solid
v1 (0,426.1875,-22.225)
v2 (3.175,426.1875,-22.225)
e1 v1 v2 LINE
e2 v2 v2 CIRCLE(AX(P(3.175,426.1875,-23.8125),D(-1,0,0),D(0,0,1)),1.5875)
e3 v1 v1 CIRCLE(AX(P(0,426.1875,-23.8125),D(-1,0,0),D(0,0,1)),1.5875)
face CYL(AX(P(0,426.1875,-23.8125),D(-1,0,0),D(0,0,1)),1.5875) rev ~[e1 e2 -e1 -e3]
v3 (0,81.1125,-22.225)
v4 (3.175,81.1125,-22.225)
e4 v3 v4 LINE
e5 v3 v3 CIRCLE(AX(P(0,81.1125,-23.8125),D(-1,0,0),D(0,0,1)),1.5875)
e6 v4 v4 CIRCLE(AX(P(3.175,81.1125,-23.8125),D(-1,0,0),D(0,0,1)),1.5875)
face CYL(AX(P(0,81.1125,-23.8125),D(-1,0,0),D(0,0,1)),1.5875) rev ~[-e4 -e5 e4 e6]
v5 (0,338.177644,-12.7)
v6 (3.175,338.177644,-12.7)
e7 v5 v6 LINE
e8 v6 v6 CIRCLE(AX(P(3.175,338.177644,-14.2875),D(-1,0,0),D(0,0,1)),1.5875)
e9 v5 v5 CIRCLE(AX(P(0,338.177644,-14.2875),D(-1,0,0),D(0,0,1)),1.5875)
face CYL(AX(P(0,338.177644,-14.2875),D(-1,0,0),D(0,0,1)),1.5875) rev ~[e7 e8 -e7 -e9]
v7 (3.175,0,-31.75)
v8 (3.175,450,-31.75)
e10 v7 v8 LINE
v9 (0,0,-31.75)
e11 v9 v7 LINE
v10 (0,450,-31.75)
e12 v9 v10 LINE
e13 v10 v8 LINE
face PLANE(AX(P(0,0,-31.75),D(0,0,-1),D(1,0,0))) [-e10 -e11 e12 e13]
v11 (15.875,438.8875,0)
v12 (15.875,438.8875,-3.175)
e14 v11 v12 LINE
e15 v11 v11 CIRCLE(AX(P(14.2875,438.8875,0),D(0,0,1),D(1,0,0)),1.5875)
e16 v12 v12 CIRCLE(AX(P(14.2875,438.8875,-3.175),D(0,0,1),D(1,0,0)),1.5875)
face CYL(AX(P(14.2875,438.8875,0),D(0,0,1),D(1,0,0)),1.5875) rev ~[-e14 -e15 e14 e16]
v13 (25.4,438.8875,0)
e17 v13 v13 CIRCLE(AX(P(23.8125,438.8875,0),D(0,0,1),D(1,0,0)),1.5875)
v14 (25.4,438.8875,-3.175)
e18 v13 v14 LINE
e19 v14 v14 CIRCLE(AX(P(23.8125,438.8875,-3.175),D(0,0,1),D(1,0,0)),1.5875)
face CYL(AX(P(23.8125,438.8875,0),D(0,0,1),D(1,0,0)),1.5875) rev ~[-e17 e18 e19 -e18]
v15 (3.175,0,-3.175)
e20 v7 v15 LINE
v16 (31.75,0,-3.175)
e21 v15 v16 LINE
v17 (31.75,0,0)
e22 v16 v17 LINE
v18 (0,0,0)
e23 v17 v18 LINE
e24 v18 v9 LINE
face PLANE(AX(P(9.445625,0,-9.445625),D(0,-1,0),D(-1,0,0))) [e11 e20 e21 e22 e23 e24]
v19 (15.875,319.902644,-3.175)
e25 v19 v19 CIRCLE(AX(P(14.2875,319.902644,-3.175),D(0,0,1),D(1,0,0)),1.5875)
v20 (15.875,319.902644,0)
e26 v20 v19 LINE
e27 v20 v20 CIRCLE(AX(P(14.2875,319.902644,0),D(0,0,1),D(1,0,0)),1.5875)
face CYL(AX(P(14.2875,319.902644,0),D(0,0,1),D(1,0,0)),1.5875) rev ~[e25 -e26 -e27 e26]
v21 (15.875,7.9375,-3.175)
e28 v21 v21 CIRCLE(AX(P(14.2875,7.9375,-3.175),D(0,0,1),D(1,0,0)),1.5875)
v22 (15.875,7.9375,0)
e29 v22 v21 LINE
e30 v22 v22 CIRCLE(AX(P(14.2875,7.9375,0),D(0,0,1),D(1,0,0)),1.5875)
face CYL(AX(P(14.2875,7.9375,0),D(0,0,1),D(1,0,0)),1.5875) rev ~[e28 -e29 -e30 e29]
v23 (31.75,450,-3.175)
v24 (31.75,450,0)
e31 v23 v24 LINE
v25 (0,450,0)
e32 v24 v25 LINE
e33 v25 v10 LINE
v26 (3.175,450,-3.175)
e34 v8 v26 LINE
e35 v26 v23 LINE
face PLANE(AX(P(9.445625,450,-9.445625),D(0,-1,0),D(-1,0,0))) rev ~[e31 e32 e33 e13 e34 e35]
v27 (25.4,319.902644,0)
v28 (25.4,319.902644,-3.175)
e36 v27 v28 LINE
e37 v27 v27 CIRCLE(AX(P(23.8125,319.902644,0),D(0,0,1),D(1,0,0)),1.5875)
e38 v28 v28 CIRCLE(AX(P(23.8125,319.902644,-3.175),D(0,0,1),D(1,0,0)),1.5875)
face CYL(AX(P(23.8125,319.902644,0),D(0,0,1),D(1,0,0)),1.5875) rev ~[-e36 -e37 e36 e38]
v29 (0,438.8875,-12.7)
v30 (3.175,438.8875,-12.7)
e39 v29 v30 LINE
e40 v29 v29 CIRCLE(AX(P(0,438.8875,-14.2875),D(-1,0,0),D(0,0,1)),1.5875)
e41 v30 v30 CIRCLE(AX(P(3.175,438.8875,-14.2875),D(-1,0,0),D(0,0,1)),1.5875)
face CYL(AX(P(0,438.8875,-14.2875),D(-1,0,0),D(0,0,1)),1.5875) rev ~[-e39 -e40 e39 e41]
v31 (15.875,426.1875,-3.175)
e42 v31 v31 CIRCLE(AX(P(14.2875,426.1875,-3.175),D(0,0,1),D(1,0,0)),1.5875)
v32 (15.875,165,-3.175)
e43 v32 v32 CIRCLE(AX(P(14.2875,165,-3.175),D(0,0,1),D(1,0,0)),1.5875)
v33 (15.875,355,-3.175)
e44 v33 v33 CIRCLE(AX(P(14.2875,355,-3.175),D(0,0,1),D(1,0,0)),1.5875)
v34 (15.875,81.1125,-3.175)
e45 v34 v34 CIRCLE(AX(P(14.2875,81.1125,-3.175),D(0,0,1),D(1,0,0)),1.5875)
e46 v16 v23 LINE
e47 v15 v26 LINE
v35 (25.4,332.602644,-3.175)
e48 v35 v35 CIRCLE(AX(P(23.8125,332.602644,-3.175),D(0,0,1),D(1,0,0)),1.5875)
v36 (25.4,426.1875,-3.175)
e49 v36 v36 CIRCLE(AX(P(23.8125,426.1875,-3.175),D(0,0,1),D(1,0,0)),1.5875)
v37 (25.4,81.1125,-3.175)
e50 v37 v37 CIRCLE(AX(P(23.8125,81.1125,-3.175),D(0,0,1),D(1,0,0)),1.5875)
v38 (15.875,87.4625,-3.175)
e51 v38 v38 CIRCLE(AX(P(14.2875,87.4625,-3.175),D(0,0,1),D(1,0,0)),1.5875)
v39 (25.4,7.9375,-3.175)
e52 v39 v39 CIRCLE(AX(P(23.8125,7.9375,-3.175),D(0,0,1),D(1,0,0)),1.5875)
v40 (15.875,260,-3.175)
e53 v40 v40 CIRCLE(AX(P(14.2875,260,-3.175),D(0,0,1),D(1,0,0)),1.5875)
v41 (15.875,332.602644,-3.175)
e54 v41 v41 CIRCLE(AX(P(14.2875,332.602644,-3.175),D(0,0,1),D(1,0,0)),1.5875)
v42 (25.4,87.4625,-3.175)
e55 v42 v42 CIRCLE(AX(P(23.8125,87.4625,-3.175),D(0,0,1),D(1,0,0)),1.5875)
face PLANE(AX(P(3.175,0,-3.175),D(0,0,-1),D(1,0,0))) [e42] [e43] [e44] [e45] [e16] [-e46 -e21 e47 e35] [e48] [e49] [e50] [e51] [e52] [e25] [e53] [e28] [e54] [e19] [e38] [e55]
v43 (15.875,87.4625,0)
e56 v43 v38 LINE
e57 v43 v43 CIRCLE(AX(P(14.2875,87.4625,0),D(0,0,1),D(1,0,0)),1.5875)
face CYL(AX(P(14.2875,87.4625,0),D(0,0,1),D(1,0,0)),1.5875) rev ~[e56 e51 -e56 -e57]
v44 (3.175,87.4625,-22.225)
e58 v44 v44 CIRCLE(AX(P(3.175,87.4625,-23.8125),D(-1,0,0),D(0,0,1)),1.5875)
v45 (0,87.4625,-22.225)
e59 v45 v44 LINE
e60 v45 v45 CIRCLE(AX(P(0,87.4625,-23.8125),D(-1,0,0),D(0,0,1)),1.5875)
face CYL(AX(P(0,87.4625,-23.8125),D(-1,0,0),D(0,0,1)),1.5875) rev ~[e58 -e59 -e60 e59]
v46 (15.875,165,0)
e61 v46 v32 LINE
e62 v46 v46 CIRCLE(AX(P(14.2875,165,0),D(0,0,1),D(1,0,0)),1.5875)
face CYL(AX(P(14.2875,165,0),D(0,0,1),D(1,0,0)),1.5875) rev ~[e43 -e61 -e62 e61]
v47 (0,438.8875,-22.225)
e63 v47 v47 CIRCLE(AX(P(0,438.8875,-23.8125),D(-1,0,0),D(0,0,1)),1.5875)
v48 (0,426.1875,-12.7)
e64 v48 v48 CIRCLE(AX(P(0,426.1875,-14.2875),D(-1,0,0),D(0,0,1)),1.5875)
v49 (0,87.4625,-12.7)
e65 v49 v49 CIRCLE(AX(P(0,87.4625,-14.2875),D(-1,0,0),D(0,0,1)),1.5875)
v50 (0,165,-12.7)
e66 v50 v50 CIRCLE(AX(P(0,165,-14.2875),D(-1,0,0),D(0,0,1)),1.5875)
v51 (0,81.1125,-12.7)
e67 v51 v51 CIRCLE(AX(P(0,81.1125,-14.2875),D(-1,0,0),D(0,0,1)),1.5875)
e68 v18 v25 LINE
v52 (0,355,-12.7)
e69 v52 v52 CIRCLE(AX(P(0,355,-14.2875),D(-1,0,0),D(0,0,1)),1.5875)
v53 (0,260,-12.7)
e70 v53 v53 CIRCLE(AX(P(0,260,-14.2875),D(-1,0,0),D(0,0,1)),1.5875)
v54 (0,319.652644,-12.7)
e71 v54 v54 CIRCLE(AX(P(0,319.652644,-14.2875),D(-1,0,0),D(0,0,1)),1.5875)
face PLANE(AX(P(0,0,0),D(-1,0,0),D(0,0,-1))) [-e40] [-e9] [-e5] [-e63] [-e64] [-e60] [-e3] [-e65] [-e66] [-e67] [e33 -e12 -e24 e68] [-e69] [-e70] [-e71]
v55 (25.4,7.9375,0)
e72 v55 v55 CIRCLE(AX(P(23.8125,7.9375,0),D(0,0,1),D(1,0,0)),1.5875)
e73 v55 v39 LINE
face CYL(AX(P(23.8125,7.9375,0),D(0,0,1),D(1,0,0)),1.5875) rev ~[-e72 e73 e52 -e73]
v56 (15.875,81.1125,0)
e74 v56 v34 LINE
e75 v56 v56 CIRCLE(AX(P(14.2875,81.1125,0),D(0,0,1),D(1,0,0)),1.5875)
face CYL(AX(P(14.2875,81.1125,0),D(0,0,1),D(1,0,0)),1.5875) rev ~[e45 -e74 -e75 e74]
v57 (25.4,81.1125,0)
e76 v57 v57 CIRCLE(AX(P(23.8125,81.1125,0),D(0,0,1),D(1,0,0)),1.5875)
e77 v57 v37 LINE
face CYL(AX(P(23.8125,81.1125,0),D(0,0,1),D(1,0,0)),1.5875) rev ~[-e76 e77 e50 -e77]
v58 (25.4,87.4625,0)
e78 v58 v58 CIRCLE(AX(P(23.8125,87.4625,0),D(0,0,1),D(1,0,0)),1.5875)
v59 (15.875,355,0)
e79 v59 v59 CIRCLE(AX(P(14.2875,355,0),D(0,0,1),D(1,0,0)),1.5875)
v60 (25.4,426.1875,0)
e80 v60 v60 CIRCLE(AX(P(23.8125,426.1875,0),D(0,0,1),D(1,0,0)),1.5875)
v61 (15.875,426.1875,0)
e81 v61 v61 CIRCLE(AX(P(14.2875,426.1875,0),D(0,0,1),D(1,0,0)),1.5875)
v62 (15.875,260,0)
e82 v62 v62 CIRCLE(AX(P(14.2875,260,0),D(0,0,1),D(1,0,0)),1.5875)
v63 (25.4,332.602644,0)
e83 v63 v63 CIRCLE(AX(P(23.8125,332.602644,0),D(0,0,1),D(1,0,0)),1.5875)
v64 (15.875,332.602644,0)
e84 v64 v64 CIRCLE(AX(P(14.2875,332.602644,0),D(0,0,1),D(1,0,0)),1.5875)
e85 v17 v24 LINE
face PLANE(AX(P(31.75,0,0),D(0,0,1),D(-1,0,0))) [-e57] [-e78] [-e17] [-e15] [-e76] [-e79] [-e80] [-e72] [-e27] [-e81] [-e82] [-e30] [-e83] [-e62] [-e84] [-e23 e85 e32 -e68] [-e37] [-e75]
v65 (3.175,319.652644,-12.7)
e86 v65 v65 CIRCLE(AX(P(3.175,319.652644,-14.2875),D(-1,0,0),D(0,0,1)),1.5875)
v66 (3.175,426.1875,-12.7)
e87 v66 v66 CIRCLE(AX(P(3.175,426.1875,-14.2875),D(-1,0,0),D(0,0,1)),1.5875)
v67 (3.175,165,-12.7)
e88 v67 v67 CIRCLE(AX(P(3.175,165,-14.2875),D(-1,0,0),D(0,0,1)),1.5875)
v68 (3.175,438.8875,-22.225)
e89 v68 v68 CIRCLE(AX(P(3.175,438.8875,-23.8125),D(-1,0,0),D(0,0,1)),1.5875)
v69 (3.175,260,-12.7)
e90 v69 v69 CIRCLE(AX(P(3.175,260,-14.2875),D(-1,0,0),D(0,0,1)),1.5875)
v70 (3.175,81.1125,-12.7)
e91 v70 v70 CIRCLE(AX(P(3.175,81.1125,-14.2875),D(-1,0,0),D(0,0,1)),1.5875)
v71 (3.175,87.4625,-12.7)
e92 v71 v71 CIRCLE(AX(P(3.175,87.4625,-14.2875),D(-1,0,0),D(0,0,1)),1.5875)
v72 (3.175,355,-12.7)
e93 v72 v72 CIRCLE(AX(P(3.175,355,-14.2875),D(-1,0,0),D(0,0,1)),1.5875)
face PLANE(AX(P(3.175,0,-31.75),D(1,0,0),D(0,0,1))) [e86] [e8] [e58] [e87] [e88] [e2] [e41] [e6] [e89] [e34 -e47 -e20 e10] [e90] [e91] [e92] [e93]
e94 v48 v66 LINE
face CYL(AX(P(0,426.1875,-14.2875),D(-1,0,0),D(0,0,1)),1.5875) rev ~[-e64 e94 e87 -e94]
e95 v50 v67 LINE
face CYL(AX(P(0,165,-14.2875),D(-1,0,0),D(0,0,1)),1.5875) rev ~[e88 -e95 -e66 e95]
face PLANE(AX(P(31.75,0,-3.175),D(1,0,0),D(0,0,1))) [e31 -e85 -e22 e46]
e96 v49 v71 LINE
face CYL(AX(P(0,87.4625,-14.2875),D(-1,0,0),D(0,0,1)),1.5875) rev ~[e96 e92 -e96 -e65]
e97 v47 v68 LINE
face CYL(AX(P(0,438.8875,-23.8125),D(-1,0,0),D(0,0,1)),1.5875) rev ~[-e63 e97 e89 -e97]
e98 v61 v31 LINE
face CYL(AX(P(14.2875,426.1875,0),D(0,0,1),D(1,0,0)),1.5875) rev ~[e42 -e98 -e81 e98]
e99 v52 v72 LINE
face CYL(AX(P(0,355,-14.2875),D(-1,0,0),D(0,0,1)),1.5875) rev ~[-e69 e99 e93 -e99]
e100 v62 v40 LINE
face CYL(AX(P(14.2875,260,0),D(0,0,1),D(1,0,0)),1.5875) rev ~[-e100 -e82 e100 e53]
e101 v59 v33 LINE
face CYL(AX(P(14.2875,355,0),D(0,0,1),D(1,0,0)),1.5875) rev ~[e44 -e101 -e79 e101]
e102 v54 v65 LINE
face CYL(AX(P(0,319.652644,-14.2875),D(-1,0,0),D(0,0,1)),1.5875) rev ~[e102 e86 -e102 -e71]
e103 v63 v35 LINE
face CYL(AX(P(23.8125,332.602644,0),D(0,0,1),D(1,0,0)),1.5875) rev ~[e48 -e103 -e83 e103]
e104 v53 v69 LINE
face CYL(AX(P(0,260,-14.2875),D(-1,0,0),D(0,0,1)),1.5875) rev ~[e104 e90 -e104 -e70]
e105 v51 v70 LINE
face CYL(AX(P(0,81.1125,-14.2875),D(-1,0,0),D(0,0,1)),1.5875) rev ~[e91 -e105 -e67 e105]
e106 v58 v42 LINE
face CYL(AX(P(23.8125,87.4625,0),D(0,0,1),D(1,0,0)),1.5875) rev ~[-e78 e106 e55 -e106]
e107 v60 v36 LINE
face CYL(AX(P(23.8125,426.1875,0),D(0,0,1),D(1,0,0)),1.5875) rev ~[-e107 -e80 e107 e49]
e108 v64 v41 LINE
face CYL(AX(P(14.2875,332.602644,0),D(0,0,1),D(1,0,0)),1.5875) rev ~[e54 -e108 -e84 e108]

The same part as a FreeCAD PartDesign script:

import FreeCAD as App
import Part
import Sketcher

V = App.Vector
Q = App.Units.Quantity

doc = App.newDocument("Part")
body = doc.addObject("PartDesign::Body", "Body")

# Sketch on XZ plane
sketch1 = body.newObject("Sketcher::SketchObject", "Sketch")
sketch1.AttachmentSupport = (doc.getObject("XZ_Plane"), [""])
sketch1.MapMode = "FlatFace"
sketch1.addGeometry(Part.LineSegment(V(3.2, -31.8, 0), V(0, -31.8, 0)), False)
sketch1.addGeometry(Part.LineSegment(V(0, -31.8, 0), V(0, 0, 0)), False)
sketch1.addGeometry(Part.LineSegment(V(0, 0, 0), V(31.8, 0, 0)), False)
sketch1.addGeometry(Part.LineSegment(V(31.8, 0, 0), V(31.8, -3.2, 0)), False)
sketch1.addGeometry(Part.LineSegment(V(31.8, -3.2, 0), V(3.2, -3.2, 0)), False)
sketch1.addGeometry(Part.LineSegment(V(3.2, -3.2, 0), V(3.2, -31.8, 0)), False)
sketch1.addConstraint(Sketcher.Constraint("Coincident", 0, 2, 1, 1))
sketch1.addConstraint(Sketcher.Constraint("Coincident", 1, 2, 2, 1))
sketch1.addConstraint(Sketcher.Constraint("Coincident", 2, 2, 3, 1))
sketch1.addConstraint(Sketcher.Constraint("Coincident", 3, 2, 4, 1))
sketch1.addConstraint(Sketcher.Constraint("Coincident", 4, 2, 5, 1))
sketch1.addConstraint(Sketcher.Constraint("Coincident", 5, 2, 0, 1))
sketch1.addConstraint(Sketcher.Constraint("Horizontal", 0))
sketch1.addConstraint(Sketcher.Constraint("Vertical", 1))
sketch1.addConstraint(Sketcher.Constraint("Horizontal", 2))
sketch1.addConstraint(Sketcher.Constraint("Vertical", 3))
sketch1.addConstraint(Sketcher.Constraint("Horizontal", 4))
sketch1.addConstraint(Sketcher.Constraint("Vertical", 5))
sketch1.addConstraint(Sketcher.Constraint("Coincident", 1, 2, -1, 1))
sketch1.addConstraint(Sketcher.Constraint("Equal", 2, 1))
sketch1.addConstraint(Sketcher.Constraint("Equal", 0, 3))
sketch1.addConstraint(Sketcher.Constraint("DistanceX", 2, 1, 2, 2, Q("1.25 in")))
sketch1.addConstraint(Sketcher.Constraint("DistanceX", 0, 2, 0, 1, Q("0.125 in")))
pad1 = body.newObject("PartDesign::Pad", "Pad")
pad1.Profile = sketch1
pad1.Length = 450
pad1.Reversed = True

# Sketch on XY plane
sketch2 = body.newObject("Sketcher::SketchObject", "Sketch001")
sketch2.AttachmentSupport = (doc.getObject("XY_Plane"), [""])
sketch2.MapMode = "FlatFace"
sketch2.addGeometry(Part.Circle(V(14.3, 81.1, 0), V(0, 0, 1), 1.6), False)
sketch2.addGeometry(Part.Circle(V(23.8, 81.1, 0), V(0, 0, 1), 1.6), False)
sketch2.addGeometry(Part.Circle(V(14.3, 87.5, 0), V(0, 0, 1), 1.6), False)
sketch2.addGeometry(Part.Circle(V(23.8, 87.5, 0), V(0, 0, 1), 1.6), False)
sketch2.addGeometry(Part.Circle(V(14.3, 438.9, 0), V(0, 0, 1), 1.6), False)
sketch2.addGeometry(Part.Circle(V(14.3, 426.2, 0), V(0, 0, 1), 1.6), False)
sketch2.addGeometry(Part.Circle(V(23.8, 438.9, 0), V(0, 0, 1), 1.6), False)
sketch2.addGeometry(Part.Circle(V(23.8, 426.2, 0), V(0, 0, 1), 1.6), False)
sketch2.addGeometry(Part.Circle(V(14.3, 332.6, 0), V(0, 0, 1), 1.6), False)
sketch2.addGeometry(Part.Circle(V(23.8, 332.6, 0), V(0, 0, 1), 1.6), False)
sketch2.addGeometry(Part.Circle(V(14.3, 319.9, 0), V(0, 0, 1), 1.6), False)
sketch2.addGeometry(Part.Circle(V(23.8, 319.9, 0), V(0, 0, 1), 1.6), False)
sketch2.addGeometry(Part.Circle(V(14.3, 7.9, 0), V(0, 0, 1), 1.6), False)
sketch2.addGeometry(Part.Circle(V(23.8, 7.9, 0), V(0, 0, 1), 1.6), False)
sketch2.addGeometry(Part.Circle(V(14.3, 165, 0), V(0, 0, 1), 1.6), False)
sketch2.addGeometry(Part.Circle(V(14.3, 260, 0), V(0, 0, 1), 1.6), False)
sketch2.addGeometry(Part.Circle(V(14.3, 355, 0), V(0, 0, 1), 1.6), False)
sketch2.addConstraint(Sketcher.Constraint("Equal", 0, 1))
sketch2.addConstraint(Sketcher.Constraint("Equal", 1, 2))
sketch2.addConstraint(Sketcher.Constraint("Equal", 2, 3))
sketch2.addConstraint(Sketcher.Constraint("Equal", 3, 4))
sketch2.addConstraint(Sketcher.Constraint("Equal", 4, 5))
sketch2.addConstraint(Sketcher.Constraint("Equal", 5, 6))
sketch2.addConstraint(Sketcher.Constraint("Equal", 6, 7))
sketch2.addConstraint(Sketcher.Constraint("Equal", 7, 8))
sketch2.addConstraint(Sketcher.Constraint("Equal", 8, 9))
sketch2.addConstraint(Sketcher.Constraint("Equal", 9, 10))
sketch2.addConstraint(Sketcher.Constraint("Equal", 10, 11))
sketch2.addConstraint(Sketcher.Constraint("Equal", 11, 12))
sketch2.addConstraint(Sketcher.Constraint("Equal", 12, 13))
sketch2.addConstraint(Sketcher.Constraint("Equal", 13, 14))
sketch2.addConstraint(Sketcher.Constraint("Equal", 14, 15))
sketch2.addConstraint(Sketcher.Constraint("Equal", 15, 16))
sketch2.addConstraint(Sketcher.Constraint("Horizontal", 0, 3, 1, 3))
sketch2.addConstraint(Sketcher.Constraint("Horizontal", 2, 3, 3, 3))
sketch2.addConstraint(Sketcher.Constraint("Horizontal", 4, 3, 6, 3))
sketch2.addConstraint(Sketcher.Constraint("Horizontal", 5, 3, 7, 3))
sketch2.addConstraint(Sketcher.Constraint("Horizontal", 8, 3, 9, 3))
sketch2.addConstraint(Sketcher.Constraint("Horizontal", 10, 3, 11, 3))
sketch2.addConstraint(Sketcher.Constraint("Horizontal", 12, 3, 13, 3))
sketch2.addConstraint(Sketcher.Constraint("Vertical", 0, 3, 2, 3))
sketch2.addConstraint(Sketcher.Constraint("Vertical", 1, 3, 3, 3))
sketch2.addConstraint(Sketcher.Constraint("Vertical", 2, 3, 4, 3))
sketch2.addConstraint(Sketcher.Constraint("Vertical", 4, 3, 5, 3))
sketch2.addConstraint(Sketcher.Constraint("Vertical", 3, 3, 6, 3))
sketch2.addConstraint(Sketcher.Constraint("Vertical", 6, 3, 7, 3))
sketch2.addConstraint(Sketcher.Constraint("Vertical", 5, 3, 8, 3))
sketch2.addConstraint(Sketcher.Constraint("Vertical", 7, 3, 9, 3))
sketch2.addConstraint(Sketcher.Constraint("Vertical", 8, 3, 10, 3))
sketch2.addConstraint(Sketcher.Constraint("Vertical", 9, 3, 11, 3))
sketch2.addConstraint(Sketcher.Constraint("Vertical", 10, 3, 12, 3))
sketch2.addConstraint(Sketcher.Constraint("Vertical", 11, 3, 13, 3))
sketch2.addConstraint(Sketcher.Constraint("Vertical", 12, 3, 14, 3))
sketch2.addConstraint(Sketcher.Constraint("Vertical", 14, 3, 15, 3))
sketch2.addConstraint(Sketcher.Constraint("Vertical", 15, 3, 16, 3))
sketch2.addConstraint(Sketcher.Constraint("Diameter", 0, Q("0.125 in")))
sketch2.addConstraint(Sketcher.Constraint("DistanceY", 5, 3, 4, 3, Q("0.5 in")))
sketch2.addConstraint(Sketcher.Constraint("DistanceY", 10, 3, 8, 3, Q("0.5 in")))
sketch2.addConstraint(Sketcher.Constraint("DistanceY", 0, 3, 2, 3, Q("0.25 in")))
sketch2.addConstraint(Sketcher.Constraint("DistanceX", -1, 1, 0, 3, Q("0.5625 in")))
sketch2.addConstraint(Sketcher.Constraint("DistanceX", -1, 1, 1, 3, Q("0.9375 in")))
sketch2.addConstraint(Sketcher.Constraint("DistanceY", -1, 1, 12, 3, Q("0.3125 in")))
sketch2.addConstraint(Sketcher.Constraint("DistanceY", -1, 1, 0, 3, Q("81.1125 mm")))
sketch2.addConstraint(Sketcher.Constraint("DistanceY", -1, 1, 4, 3, Q("438.8875 mm")))
sketch2.addConstraint(Sketcher.Constraint("DistanceY", -1, 1, 14, 3, Q("165 mm")))
sketch2.addConstraint(Sketcher.Constraint("DistanceY", -1, 1, 15, 3, Q("260 mm")))
sketch2.addConstraint(Sketcher.Constraint("DistanceY", -1, 1, 16, 3, Q("355 mm")))
sketch2.addConstraint(Sketcher.Constraint("DistanceY", -1, 1, 8, 3, Q("332.602644 mm")))
pocket1 = body.newObject("PartDesign::Pocket", "Pocket")
pocket1.Profile = sketch2
pocket1.Length = Q("0.125 in")

# Sketch on YZ plane
sketch3 = body.newObject("Sketcher::SketchObject", "Sketch002")
sketch3.AttachmentSupport = (doc.getObject("YZ_Plane"), [""])
sketch3.MapMode = "FlatFace"
sketch3.addGeometry(Part.Circle(V(81.1, -23.8, 0), V(0, 0, 1), 1.6), False)
sketch3.addGeometry(Part.Circle(V(81.1, -14.3, 0), V(0, 0, 1), 1.6), False)
sketch3.addGeometry(Part.Circle(V(87.5, -23.8, 0), V(0, 0, 1), 1.6), False)
sketch3.addGeometry(Part.Circle(V(87.5, -14.3, 0), V(0, 0, 1), 1.6), False)
sketch3.addGeometry(Part.Circle(V(438.9, -23.8, 0), V(0, 0, 1), 1.6), False)
sketch3.addGeometry(Part.Circle(V(438.9, -14.3, 0), V(0, 0, 1), 1.6), False)
sketch3.addGeometry(Part.Circle(V(426.2, -23.8, 0), V(0, 0, 1), 1.6), False)
sketch3.addGeometry(Part.Circle(V(426.2, -14.3, 0), V(0, 0, 1), 1.6), False)
sketch3.addGeometry(Part.Circle(V(338.2, -14.3, 0), V(0, 0, 1), 1.6), False)
sketch3.addGeometry(Part.Circle(V(319.7, -14.3, 0), V(0, 0, 1), 1.6), False)
sketch3.addGeometry(Part.Circle(V(165, -14.3, 0), V(0, 0, 1), 1.6), False)
sketch3.addGeometry(Part.Circle(V(260, -14.3, 0), V(0, 0, 1), 1.6), False)
sketch3.addGeometry(Part.Circle(V(355, -14.3, 0), V(0, 0, 1), 1.6), False)
sketch3.addConstraint(Sketcher.Constraint("Equal", 0, 1))
sketch3.addConstraint(Sketcher.Constraint("Equal", 1, 2))
sketch3.addConstraint(Sketcher.Constraint("Equal", 2, 3))
sketch3.addConstraint(Sketcher.Constraint("Equal", 3, 4))
sketch3.addConstraint(Sketcher.Constraint("Equal", 4, 5))
sketch3.addConstraint(Sketcher.Constraint("Equal", 5, 6))
sketch3.addConstraint(Sketcher.Constraint("Equal", 6, 7))
sketch3.addConstraint(Sketcher.Constraint("Equal", 7, 8))
sketch3.addConstraint(Sketcher.Constraint("Equal", 8, 9))
sketch3.addConstraint(Sketcher.Constraint("Equal", 9, 10))
sketch3.addConstraint(Sketcher.Constraint("Equal", 10, 11))
sketch3.addConstraint(Sketcher.Constraint("Equal", 11, 12))
sketch3.addConstraint(Sketcher.Constraint("Horizontal", 0, 3, 2, 3))
sketch3.addConstraint(Sketcher.Constraint("Horizontal", 1, 3, 3, 3))
sketch3.addConstraint(Sketcher.Constraint("Horizontal", 2, 3, 4, 3))
sketch3.addConstraint(Sketcher.Constraint("Horizontal", 3, 3, 5, 3))
sketch3.addConstraint(Sketcher.Constraint("Horizontal", 4, 3, 6, 3))
sketch3.addConstraint(Sketcher.Constraint("Horizontal", 5, 3, 7, 3))
sketch3.addConstraint(Sketcher.Constraint("Horizontal", 7, 3, 8, 3))
sketch3.addConstraint(Sketcher.Constraint("Horizontal", 8, 3, 9, 3))
sketch3.addConstraint(Sketcher.Constraint("Horizontal", 9, 3, 10, 3))
sketch3.addConstraint(Sketcher.Constraint("Horizontal", 10, 3, 11, 3))
sketch3.addConstraint(Sketcher.Constraint("Horizontal", 11, 3, 12, 3))
sketch3.addConstraint(Sketcher.Constraint("Vertical", 0, 3, 1, 3))
sketch3.addConstraint(Sketcher.Constraint("Vertical", 2, 3, 3, 3))
sketch3.addConstraint(Sketcher.Constraint("Vertical", 4, 3, 5, 3))
sketch3.addConstraint(Sketcher.Constraint("Vertical", 6, 3, 7, 3))
sketch3.addConstraint(Sketcher.Constraint("Diameter", 0, Q("0.125 in")))
sketch3.addConstraint(Sketcher.Constraint("DistanceX", 6, 3, 4, 3, Q("0.5 in")))
sketch3.addConstraint(Sketcher.Constraint("DistanceX", 0, 3, 2, 3, Q("0.25 in")))
sketch3.addConstraint(Sketcher.Constraint("DistanceY", 0, 3, -1, 1, Q("0.9375 in")))
sketch3.addConstraint(Sketcher.Constraint("DistanceY", 1, 3, -1, 1, Q("0.5625 in")))
sketch3.addConstraint(Sketcher.Constraint("DistanceX", -1, 1, 0, 3, Q("81.1125 mm")))
sketch3.addConstraint(Sketcher.Constraint("DistanceX", -1, 1, 4, 3, Q("438.8875 mm")))
sketch3.addConstraint(Sketcher.Constraint("DistanceX", -1, 1, 10, 3, Q("165 mm")))
sketch3.addConstraint(Sketcher.Constraint("DistanceX", -1, 1, 11, 3, Q("260 mm")))
sketch3.addConstraint(Sketcher.Constraint("DistanceX", -1, 1, 12, 3, Q("355 mm")))
sketch3.addConstraint(Sketcher.Constraint("DistanceX", 9, 3, 8, 3, Q("18.525 mm")))
sketch3.addConstraint(Sketcher.Constraint("DistanceX", -1, 1, 8, 3, Q("338.177644 mm")))
pocket2 = body.newObject("PartDesign::Pocket", "Pocket001")
pocket2.Profile = sketch3
pocket2.Length = Q("0.125 in")
pocket2.Reversed = True

doc.recompute()
